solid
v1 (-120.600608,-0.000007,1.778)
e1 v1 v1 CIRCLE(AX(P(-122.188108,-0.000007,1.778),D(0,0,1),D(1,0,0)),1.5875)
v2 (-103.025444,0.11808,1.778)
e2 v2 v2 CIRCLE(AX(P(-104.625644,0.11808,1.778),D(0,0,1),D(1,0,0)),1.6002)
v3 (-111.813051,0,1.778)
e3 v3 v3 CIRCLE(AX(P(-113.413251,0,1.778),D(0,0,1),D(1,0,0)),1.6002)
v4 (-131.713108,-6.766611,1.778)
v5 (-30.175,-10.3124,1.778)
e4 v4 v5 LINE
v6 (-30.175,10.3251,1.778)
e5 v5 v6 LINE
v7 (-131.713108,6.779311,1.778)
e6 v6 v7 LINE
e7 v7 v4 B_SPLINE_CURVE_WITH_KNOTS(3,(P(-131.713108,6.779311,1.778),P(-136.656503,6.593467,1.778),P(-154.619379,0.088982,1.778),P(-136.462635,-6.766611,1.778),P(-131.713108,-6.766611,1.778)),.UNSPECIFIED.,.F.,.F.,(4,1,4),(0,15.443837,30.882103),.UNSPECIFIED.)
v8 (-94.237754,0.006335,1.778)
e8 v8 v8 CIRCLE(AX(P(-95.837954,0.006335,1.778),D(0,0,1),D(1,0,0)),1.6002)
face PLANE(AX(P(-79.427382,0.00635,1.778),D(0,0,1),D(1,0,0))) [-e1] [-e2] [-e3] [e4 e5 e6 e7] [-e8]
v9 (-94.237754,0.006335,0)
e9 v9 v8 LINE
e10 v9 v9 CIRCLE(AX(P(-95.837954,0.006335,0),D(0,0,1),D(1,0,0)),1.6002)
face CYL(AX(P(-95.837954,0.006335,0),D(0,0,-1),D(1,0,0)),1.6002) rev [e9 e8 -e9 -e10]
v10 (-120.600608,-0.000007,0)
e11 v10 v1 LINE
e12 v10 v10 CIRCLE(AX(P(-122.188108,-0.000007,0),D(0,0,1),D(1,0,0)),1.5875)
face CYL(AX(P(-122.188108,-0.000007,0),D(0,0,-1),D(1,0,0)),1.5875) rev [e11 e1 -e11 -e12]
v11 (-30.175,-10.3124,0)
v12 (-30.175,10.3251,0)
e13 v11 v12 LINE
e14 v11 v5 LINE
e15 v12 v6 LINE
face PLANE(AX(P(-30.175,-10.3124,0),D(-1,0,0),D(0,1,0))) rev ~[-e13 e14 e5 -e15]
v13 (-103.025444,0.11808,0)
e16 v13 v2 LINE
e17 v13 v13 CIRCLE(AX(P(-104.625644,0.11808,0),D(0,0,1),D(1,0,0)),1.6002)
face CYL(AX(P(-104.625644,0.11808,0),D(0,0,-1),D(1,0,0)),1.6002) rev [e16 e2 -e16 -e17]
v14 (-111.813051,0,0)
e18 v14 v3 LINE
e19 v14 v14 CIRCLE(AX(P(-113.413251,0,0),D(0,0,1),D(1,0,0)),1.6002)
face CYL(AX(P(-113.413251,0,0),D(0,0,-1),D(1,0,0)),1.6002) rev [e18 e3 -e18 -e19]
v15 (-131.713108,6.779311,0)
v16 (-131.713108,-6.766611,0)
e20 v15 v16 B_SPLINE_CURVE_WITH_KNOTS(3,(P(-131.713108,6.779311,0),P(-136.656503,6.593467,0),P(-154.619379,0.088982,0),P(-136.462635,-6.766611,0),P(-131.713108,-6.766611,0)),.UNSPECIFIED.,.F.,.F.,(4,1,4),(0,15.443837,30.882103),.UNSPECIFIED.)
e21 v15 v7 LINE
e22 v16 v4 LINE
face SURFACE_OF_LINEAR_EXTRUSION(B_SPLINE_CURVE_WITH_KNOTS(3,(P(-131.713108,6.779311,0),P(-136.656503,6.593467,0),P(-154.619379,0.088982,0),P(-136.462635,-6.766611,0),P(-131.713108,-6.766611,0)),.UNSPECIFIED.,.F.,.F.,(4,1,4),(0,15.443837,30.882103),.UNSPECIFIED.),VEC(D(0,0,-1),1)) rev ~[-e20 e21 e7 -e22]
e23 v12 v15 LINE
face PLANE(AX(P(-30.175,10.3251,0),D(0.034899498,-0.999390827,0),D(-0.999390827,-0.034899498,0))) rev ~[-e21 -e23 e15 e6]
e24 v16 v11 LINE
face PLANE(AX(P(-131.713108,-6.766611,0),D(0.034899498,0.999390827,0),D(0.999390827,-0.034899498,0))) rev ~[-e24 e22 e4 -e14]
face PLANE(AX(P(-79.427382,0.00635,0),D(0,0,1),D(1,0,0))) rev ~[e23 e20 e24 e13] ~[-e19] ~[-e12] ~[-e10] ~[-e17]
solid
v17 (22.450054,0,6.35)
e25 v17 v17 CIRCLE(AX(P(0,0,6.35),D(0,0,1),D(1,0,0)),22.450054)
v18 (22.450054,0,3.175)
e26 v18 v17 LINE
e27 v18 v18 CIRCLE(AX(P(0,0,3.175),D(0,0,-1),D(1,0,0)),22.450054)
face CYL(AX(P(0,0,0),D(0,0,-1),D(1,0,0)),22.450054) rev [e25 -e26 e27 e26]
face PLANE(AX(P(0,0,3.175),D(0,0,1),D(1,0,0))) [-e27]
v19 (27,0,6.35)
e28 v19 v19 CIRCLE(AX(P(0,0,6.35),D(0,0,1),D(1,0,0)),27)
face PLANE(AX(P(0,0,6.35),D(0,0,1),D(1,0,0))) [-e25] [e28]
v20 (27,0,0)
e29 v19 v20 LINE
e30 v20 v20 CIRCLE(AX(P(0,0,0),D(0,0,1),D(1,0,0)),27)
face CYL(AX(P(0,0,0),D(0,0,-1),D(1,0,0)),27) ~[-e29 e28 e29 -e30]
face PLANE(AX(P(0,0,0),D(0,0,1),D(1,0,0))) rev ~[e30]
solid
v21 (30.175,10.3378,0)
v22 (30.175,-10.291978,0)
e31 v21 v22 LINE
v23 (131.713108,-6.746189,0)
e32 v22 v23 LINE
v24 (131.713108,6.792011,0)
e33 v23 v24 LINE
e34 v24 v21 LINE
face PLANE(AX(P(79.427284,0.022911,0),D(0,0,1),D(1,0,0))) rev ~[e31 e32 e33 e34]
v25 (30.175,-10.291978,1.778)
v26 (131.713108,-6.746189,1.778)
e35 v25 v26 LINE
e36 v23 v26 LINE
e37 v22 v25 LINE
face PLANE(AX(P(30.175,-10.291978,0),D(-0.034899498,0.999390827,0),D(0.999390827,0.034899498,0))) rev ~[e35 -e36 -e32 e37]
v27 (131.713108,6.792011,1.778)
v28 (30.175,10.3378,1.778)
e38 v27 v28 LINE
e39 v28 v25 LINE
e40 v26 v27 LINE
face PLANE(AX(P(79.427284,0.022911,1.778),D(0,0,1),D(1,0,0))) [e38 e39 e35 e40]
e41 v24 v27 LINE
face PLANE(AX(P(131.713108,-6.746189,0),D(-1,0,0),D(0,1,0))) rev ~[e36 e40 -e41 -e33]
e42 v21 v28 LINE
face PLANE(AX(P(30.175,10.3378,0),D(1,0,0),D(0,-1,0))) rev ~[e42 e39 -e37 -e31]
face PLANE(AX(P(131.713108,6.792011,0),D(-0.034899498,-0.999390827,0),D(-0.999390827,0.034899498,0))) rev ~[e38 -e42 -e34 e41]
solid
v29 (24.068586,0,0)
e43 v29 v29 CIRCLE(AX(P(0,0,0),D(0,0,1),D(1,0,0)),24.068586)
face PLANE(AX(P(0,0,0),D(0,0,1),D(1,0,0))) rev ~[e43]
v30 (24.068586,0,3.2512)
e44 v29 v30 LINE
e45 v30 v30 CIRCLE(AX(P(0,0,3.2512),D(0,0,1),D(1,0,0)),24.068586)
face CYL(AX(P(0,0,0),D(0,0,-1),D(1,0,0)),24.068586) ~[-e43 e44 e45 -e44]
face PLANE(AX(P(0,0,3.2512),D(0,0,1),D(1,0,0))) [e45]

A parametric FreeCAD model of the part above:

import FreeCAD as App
import Part
import Sketcher

V = App.Vector
Q = App.Units.Quantity


def add_polygon(sketch, points):
    """Adds a closed chain of lines whose ends are joined by coincident constraints."""
    first, n = sketch.GeometryCount, len(points)
    for a, b in zip(points, points[1:] + points[:1]):
        sketch.addGeometry(Part.LineSegment(App.Vector(*a, 0), App.Vector(*b, 0)), False)
    for i in range(n):
        sketch.addConstraint(Sketcher.Constraint("Coincident", first + i, 2, first + (i + 1) % n, 1))

doc = App.newDocument("Part")
body = doc.addObject("PartDesign::Body", "Body")

# Sketch on XY plane
sketch1 = doc.addObject("Sketcher::SketchObject", "Sketch")
body.addObject(sketch1)
sketch1.AttachmentSupport = (doc.XY_Plane, [""])
sketch1.MapMode = "FlatFace"
sketch1.addGeometry([
    Part.Circle(V(0, 0, 0), V(0, 0, 1), 27),
    Part.Circle(V(0, 0, 0), V(0, 0, 1), 22.450054),
], False)
sketch1.addConstraint([
    Sketcher.Constraint("Coincident", 0, 3, -1, 1),
    Sketcher.Constraint("Coincident", 1, 3, -1, 1),
    Sketcher.Constraint("Diameter", 0, Q("54 mm")),
    Sketcher.Constraint("Diameter", 1, Q("44.900108 mm")),
])
pad1 = doc.addObject("PartDesign::Pad", "Pad")
body.addObject(pad1)
pad1.Profile = sketch1
pad1.Length = Q("0.125 in")

# Sketch on XY plane
sketch2 = doc.addObject("Sketcher::SketchObject", "Sketch001")
body.addObject(sketch2)
sketch2.AttachmentSupport = (doc.XY_Plane, [""])
sketch2.MapMode = "FlatFace"
sketch2.addGeometry([
    Part.Circle(V(0, 0, 0), V(0, 0, 1), 27),
    Part.Circle(V(0, 0, 0), V(0, 0, 1), 22.450054),
], False)
sketch2.addConstraint([
    Sketcher.Constraint("Coincident", 0, 3, -1, 1),
    Sketcher.Constraint("Coincident", 1, 3, -1, 1),
    Sketcher.Constraint("Diameter", 0, Q("54 mm")),
    Sketcher.Constraint("Diameter", 1, Q("44.900108 mm")),
])
pad2 = doc.addObject("PartDesign::Pad", "Pad001")
body.addObject(pad2)
pad2.Profile = sketch2
pad2.Length = Q("0.25 in")

# Sketch on XY plane
sketch3 = doc.addObject("Sketcher::SketchObject", "Sketch002")
body.addObject(sketch3)
sketch3.AttachmentSupport = (doc.XY_Plane, [""])
sketch3.MapMode = "FlatFace"
sketch3.addGeometry(Part.Circle(V(0, 0, 0), V(0, 0, 1), 24.068586), False)
sketch3.addConstraint([
    Sketcher.Constraint("Coincident", 0, 3, -1, 1),
    Sketcher.Constraint("Diameter", 0, Q("48.137172 mm")),
])
pad3 = doc.addObject("PartDesign::Pad", "Pad002")
body.addObject(pad3)
pad3.Profile = sketch3
pad3.Length = Q("0.125 in")
body2 = doc.addObject("PartDesign::Body", "Body001")
body2.AllowCompound = True

# Sketch on XY plane
sketch4 = doc.addObject("Sketcher::SketchObject", "Sketch003")
body2.addObject(sketch4)
sketch4.AttachmentSupport = (doc.getObject("XY_Plane001"), [""])
sketch4.MapMode = "FlatFace"
sketch4.addGeometry(Part.LineSegment(V(-30.175, -10.3124, 0), V(-30.175, 10.3251, 0)), False)  # 0
sketch4.addGeometry(Part.LineSegment(V(-30.175, 10.3251, 0), V(-131.713108, 6.779311, 0)), False)  # 1
sketch4.addGeometry(Part.BSplineCurve([V(-131.713108, 6.779311, 0), V(-136.656503, 6.593467, 0), V(-154.619379, 0.088982, 0), V(-136.462635, -6.766611, 0), V(-131.713108, -6.766611, 0)], [4, 1, 4], [0, 15.443837, 30.882103], False, 3, [1, 1, 1, 1, 1], False), False)  # 2
sketch4.addGeometry(Part.LineSegment(V(-131.713108, -6.766611, 0), V(-30.175, -10.3124, 0)), False)  # 3
sketch4.addGeometry(Part.Circle(V(-122.188108, -0.000007, 0), V(0, 0, 1), 1.5875), False)  # 4
sketch4.addGeometry(Part.Circle(V(-113.413251, 0, 0), V(0, 0, 1), 1.6002), False)  # 5
sketch4.addGeometry(Part.Circle(V(-95.837954, 0.006335, 0), V(0, 0, 1), 1.6002), False)  # 6
sketch4.addGeometry(Part.Circle(V(-104.625644, 0.11808, 0), V(0, 0, 1), 1.6002), False)  # 7
add_polygon(sketch4, [(131.713108, 6.792011), (30.175, 10.3378), (30.175, -10.291978), (131.713108, -6.746189)])  # lines 8-11
sketch4.addConstraint([
    Sketcher.Constraint("Block", 2),
    Sketcher.Constraint("Coincident", 0, 2, 1, 1),
    Sketcher.Constraint("Coincident", 1, 2, 2, 1),
    Sketcher.Constraint("Coincident", 2, 2, 3, 1),
    Sketcher.Constraint("Coincident", 3, 2, 0, 1),
    Sketcher.Constraint("Vertical", 0),
    Sketcher.Constraint("Vertical", 9),
    Sketcher.Constraint("Vertical", 11),
    Sketcher.Constraint("PointOnObject", 5, 3, -1),
    Sketcher.Constraint("Distance", 1, Q("4 in")),
    Sketcher.Constraint("Distance", 3, Q("4 in")),
    Sketcher.Constraint("Distance", 8, Q("4 in")),
    Sketcher.Constraint("Distance", 10, Q("4 in")),
    Sketcher.Constraint("Diameter", 4, Q("0.125 in")),
    Sketcher.Constraint("Diameter", 5, Q("0.126 in")),
    Sketcher.Constraint("Diameter", 6, Q("0.126 in")),
    Sketcher.Constraint("Diameter", 7, Q("0.126 in")),
    Sketcher.Constraint("DistanceY", 0, 1, 0, 2, Q("0.8125 in")),
    Sketcher.Constraint("DistanceY", 11, 1, 11, 2, Q("0.533 in")),
    Sketcher.Constraint("DistanceY", -1, 1, 8, 2, Q("0.407 in")),
    Sketcher.Constraint("DistanceX", 1, 2, 4, 3, Q("0.375 in")),
    Sketcher.Constraint("DistanceY", 9, 2, 9, 1, Q("20.629778 mm")),
    Sketcher.Constraint("DistanceX", -1, 1, 8, 2, Q("30.175 mm")),
    Sketcher.Constraint("DistanceX", 5, 3, -1, 1, Q("113.413251 mm")),
    Sketcher.Constraint("DistanceY", -1, 1, 7, 3, Q("0.11808 mm")),
    Sketcher.Constraint("DistanceX", 7, 3, 6, 3, Q("8.78769 mm")),
    Sketcher.Constraint("DistanceX", 6, 3, 10, 2, Q("227.551062 mm")),
    Sketcher.Constraint("DistanceY", -1, 1, 6, 3, Q("0.006335 mm")),
    Sketcher.Constraint("DistanceY", 4, 3, 6, 3, Q("0.006342 mm")),
])
pad4 = doc.addObject("PartDesign::Pad", "Pad003")
body2.addObject(pad4)
pad4.Profile = sketch4
pad4.Length = Q("0.07 in")
body3 = doc.addObject("PartDesign::Body", "Body002")

# Sketch on XY plane
sketch5 = doc.addObject("Sketcher::SketchObject", "Sketch004")
body3.addObject(sketch5)
sketch5.AttachmentSupport = (doc.getObject("XY_Plane002"), [""])
sketch5.MapMode = "FlatFace"
sketch5.addGeometry(Part.Circle(V(0, 0, 0), V(0, 0, 1), 24.068586), False)
sketch5.addConstraint([
    Sketcher.Constraint("Coincident", 0, 3, -1, 1),
    Sketcher.Constraint("Diameter", 0, Q("48.137172 mm")),
])
pad5 = doc.addObject("PartDesign::Pad", "Pad004")
body3.addObject(pad5)
pad5.Profile = sketch5
pad5.Length = Q("0.128 in")

doc.recompute()
